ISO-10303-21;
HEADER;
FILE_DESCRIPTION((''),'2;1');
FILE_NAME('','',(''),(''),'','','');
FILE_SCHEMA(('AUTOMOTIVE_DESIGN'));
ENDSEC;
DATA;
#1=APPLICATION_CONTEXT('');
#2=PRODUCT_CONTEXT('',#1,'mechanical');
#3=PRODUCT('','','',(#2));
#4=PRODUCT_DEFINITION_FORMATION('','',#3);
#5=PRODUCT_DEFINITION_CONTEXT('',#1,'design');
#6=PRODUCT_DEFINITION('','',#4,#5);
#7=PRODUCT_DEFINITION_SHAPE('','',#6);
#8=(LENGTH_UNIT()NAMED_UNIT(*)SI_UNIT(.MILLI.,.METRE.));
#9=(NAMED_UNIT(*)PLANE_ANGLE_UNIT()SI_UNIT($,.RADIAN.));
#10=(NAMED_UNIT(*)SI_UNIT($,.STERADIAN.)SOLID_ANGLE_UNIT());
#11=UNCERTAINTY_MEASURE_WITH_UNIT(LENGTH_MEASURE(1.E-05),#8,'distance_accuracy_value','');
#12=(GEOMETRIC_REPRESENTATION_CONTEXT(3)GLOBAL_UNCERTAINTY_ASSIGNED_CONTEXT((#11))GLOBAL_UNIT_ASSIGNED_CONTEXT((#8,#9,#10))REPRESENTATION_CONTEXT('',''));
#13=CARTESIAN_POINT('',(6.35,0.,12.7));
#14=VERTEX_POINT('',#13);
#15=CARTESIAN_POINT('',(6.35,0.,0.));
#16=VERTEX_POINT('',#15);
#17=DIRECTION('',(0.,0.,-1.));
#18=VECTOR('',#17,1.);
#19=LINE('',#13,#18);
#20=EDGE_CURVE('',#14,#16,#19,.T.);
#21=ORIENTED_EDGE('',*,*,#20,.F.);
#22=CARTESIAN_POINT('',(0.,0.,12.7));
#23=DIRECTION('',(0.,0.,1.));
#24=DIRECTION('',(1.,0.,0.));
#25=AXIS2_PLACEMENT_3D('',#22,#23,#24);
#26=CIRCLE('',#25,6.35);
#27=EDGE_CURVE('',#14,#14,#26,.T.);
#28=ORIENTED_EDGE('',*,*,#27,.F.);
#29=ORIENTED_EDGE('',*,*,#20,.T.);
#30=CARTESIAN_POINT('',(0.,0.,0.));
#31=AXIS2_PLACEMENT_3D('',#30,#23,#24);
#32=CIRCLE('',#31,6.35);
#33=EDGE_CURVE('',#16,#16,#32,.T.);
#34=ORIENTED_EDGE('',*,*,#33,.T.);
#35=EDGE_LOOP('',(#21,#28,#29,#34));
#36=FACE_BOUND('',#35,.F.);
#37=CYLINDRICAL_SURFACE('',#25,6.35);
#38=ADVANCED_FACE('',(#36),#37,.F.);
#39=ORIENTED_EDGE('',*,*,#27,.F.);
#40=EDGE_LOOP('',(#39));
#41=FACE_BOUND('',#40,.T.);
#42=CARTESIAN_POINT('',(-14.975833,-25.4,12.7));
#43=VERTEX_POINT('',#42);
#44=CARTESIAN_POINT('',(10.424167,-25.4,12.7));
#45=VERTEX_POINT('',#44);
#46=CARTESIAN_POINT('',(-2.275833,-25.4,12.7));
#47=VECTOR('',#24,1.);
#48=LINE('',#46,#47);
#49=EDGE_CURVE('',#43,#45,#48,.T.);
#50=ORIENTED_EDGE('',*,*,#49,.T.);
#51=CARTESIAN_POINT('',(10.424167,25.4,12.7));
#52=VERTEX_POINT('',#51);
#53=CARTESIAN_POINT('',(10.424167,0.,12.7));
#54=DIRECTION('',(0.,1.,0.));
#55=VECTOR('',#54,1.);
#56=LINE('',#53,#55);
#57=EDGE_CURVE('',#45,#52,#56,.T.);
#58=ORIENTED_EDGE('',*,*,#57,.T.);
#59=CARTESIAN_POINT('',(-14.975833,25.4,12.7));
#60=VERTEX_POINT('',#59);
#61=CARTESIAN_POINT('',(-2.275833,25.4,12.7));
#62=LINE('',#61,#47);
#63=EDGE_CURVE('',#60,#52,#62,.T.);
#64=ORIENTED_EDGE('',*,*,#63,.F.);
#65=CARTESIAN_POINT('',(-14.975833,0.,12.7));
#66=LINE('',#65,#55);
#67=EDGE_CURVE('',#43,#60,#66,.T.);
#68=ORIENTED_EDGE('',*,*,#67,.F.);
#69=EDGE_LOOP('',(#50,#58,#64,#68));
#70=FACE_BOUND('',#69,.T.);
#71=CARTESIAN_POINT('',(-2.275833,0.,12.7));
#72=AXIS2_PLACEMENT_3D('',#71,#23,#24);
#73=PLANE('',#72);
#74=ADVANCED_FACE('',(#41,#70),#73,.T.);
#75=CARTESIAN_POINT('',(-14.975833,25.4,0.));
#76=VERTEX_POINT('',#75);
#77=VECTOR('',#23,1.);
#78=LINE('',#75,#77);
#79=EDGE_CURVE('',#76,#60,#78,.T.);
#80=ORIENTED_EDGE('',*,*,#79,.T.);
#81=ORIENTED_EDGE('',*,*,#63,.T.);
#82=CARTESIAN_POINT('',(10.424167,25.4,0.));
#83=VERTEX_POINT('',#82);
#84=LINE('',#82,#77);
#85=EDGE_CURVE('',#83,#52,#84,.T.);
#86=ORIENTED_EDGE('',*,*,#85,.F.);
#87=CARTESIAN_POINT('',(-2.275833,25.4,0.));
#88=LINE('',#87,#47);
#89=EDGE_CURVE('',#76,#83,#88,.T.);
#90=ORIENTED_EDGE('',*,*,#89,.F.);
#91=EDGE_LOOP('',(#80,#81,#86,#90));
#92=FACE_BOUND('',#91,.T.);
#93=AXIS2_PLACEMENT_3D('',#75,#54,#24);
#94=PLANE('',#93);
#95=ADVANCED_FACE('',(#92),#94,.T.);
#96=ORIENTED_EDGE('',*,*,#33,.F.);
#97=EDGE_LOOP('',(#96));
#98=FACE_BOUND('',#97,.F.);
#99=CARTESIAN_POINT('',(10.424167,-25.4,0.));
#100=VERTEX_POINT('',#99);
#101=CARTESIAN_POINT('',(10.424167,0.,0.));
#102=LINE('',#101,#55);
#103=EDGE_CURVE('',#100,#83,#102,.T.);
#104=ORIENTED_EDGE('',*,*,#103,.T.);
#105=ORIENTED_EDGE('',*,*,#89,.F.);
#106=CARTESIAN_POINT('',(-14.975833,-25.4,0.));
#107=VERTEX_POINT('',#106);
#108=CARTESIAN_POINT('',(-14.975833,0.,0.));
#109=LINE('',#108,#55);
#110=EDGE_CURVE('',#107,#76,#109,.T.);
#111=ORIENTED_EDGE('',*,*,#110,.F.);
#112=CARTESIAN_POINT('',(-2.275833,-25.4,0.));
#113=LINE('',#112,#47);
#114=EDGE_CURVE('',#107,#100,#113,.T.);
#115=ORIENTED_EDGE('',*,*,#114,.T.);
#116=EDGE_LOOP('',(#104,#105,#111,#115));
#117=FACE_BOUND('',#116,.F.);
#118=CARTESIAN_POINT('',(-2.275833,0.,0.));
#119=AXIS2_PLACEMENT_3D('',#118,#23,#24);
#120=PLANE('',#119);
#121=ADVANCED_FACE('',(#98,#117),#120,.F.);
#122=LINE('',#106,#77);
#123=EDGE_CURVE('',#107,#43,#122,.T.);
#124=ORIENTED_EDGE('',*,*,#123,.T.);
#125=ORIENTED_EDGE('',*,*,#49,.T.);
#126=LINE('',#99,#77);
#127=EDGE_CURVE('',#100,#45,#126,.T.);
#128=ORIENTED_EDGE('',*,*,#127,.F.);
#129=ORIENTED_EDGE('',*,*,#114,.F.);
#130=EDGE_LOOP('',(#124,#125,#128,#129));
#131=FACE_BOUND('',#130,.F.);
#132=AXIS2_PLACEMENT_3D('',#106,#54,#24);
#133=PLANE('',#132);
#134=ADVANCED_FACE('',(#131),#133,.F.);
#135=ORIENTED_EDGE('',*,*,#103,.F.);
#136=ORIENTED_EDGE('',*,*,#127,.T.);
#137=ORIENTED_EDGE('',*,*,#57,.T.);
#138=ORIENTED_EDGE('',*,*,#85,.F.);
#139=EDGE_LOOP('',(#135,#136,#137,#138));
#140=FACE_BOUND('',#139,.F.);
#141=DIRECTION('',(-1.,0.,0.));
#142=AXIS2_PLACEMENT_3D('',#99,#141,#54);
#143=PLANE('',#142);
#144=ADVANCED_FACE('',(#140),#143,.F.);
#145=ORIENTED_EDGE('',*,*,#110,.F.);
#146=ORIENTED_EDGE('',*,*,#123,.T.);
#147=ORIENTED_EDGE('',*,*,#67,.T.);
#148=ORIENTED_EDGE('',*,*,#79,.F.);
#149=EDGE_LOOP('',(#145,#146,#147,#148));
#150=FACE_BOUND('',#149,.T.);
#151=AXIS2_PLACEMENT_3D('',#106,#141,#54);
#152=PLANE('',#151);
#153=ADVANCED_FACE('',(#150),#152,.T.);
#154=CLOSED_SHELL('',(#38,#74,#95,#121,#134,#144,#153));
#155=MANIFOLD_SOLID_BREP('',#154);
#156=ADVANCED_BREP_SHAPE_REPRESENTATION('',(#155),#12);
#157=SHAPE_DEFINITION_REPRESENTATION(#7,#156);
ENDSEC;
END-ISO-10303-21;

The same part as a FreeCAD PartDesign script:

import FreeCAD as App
import Part
import Sketcher

V = App.Vector
Q = App.Units.Quantity

doc = App.newDocument("Part")
body = doc.addObject("PartDesign::Body", "Body")

# Sketch on XY plane
sketch1 = body.newObject("Sketcher::SketchObject", "Sketch")
sketch1.AttachmentSupport = (doc.getObject("XY_Plane"), [""])
sketch1.MapMode = "FlatFace"
sketch1.addGeometry([
    Part.LineSegment(V(-15, 25, 0), V(-15, -25, 0)),
    Part.LineSegment(V(-15, -25, 0), V(10, -25, 0)),
    Part.LineSegment(V(10, -25, 0), V(10, 25, 0)),
    Part.LineSegment(V(10, 25, 0), V(-15, 25, 0)),
], False)
sketch1.addConstraint([
    Sketcher.Constraint("Coincident", 0, 2, 1, 1),
    Sketcher.Constraint("Coincident", 1, 2, 2, 1),
    Sketcher.Constraint("Coincident", 2, 2, 3, 1),
    Sketcher.Constraint("Coincident", 3, 2, 0, 1),
    Sketcher.Constraint("Vertical", 0),
    Sketcher.Constraint("Horizontal", 1),
    Sketcher.Constraint("Vertical", 2),
    Sketcher.Constraint("Horizontal", 3),
    Sketcher.Constraint("DistanceX", 1, 1, 1, 2, Q("1 in")),
    Sketcher.Constraint("DistanceY", 0, 2, 0, 1, Q("2 in")),
    Sketcher.Constraint("DistanceY", 0, 2, -1, 1, Q("1 in")),
    Sketcher.Constraint("DistanceX", 0, 2, -1, 1, 14.975833),
])
pad1 = body.newObject("PartDesign::Pad", "Pad")
pad1.Profile = sketch1
pad1.Length = Q("0.5 in")

# Sketch on XY plane
sketch2 = body.newObject("Sketcher::SketchObject", "Sketch001")
sketch2.AttachmentSupport = (doc.getObject("XY_Plane"), [""])
sketch2.MapMode = "FlatFace"
sketch2.AttachmentOffset = App.Placement(V(0, 0, 0.5 * 25.4), App.Rotation())
sketch2.addGeometry(Part.Circle(V(0, 0, 0), V(0, 0, 1), 6), False)
sketch2.addConstraint([
    Sketcher.Constraint("Coincident", 0, 3, -1, 1),
    Sketcher.Constraint("Diameter", 0, Q("0.5 in")),
])
pocket1 = body.newObject("PartDesign::Pocket", "Pocket")
pocket1.Profile = sketch2
pocket1.Length = Q("0.96 in")

doc.recompute()
